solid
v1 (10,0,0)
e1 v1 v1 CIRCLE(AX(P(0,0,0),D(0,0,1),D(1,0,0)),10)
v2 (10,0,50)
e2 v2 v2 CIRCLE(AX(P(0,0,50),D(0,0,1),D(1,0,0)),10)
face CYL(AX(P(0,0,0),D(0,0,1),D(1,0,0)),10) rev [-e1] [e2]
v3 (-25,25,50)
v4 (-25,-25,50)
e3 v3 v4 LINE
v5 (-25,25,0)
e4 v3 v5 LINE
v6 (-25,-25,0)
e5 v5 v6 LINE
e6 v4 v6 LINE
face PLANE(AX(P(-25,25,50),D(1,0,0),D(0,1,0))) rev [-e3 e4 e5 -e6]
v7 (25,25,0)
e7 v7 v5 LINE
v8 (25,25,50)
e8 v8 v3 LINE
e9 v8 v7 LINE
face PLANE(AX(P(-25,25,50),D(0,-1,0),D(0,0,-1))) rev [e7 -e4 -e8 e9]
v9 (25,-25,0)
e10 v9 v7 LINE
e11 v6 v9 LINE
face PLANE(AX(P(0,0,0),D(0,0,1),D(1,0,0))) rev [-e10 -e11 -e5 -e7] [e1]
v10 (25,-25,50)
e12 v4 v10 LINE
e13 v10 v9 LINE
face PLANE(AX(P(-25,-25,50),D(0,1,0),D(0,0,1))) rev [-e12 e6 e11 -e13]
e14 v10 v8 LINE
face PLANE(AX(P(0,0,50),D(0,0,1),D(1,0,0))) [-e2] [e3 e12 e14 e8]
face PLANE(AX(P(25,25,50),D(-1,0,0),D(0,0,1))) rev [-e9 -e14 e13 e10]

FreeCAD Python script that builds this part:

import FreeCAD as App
import Part
import Sketcher

V = App.Vector
Q = App.Units.Quantity


def add_polygon(sketch, points):
    """Adds a closed chain of lines whose ends are joined by coincident constraints."""
    first, n = sketch.GeometryCount, len(points)
    for a, b in zip(points, points[1:] + points[:1]):
        sketch.addGeometry(Part.LineSegment(App.Vector(*a, 0), App.Vector(*b, 0)), False)
    for i in range(n):
        sketch.addConstraint(Sketcher.Constraint("Coincident", first + i, 2, first + (i + 1) % n, 1))

doc = App.newDocument("Part")
body = doc.addObject("PartDesign::Body", "Body")

# Sketch on XY plane
sketch1 = doc.addObject("Sketcher::SketchObject", "Sketch")
body.addObject(sketch1)
sketch1.AttachmentSupport = (doc.XY_Plane, [""])
sketch1.MapMode = "FlatFace"
add_polygon(sketch1, [(-25, 25), (-25, -25), (25, -25), (25, 25)])  # lines 0-3
sketch1.addConstraint([
    Sketcher.Constraint("Vertical", 0),
    Sketcher.Constraint("Horizontal", 1),
    Sketcher.Constraint("Vertical", 2),
    Sketcher.Constraint("Horizontal", 3),
    Sketcher.Constraint("Symmetric", 0, 2, 2, 2, -1, 1),
    Sketcher.Constraint("Equal", 3, 0),
    Sketcher.Constraint("DistanceX", 1, 1, 1, 2, Q("50 mm")),
])
pad1 = doc.addObject("PartDesign::Pad", "Pad")
body.addObject(pad1)
pad1.Profile = sketch1
pad1.Length = 50

# Sketch on XY plane
sketch2 = doc.addObject("Sketcher::SketchObject", "Sketch001")
body.addObject(sketch2)
sketch2.AttachmentSupport = (doc.XY_Plane, [""])
sketch2.MapMode = "FlatFace"
sketch2.AttachmentOffset = App.Placement(V(0, 0, 50), App.Rotation())
sketch2.addGeometry(Part.Circle(V(0, 0, 0), V(0, 0, 1), 10), False)
sketch2.addConstraint([
    Sketcher.Constraint("Coincident", 0, 3, -1, 1),
    Sketcher.Constraint("Diameter", 0, Q("20 mm")),
])
pocket1 = doc.addObject("PartDesign::Pocket", "Pocket")
body.addObject(pocket1)
pocket1.Profile = sketch2
pocket1.Length = 50

doc.recompute()
